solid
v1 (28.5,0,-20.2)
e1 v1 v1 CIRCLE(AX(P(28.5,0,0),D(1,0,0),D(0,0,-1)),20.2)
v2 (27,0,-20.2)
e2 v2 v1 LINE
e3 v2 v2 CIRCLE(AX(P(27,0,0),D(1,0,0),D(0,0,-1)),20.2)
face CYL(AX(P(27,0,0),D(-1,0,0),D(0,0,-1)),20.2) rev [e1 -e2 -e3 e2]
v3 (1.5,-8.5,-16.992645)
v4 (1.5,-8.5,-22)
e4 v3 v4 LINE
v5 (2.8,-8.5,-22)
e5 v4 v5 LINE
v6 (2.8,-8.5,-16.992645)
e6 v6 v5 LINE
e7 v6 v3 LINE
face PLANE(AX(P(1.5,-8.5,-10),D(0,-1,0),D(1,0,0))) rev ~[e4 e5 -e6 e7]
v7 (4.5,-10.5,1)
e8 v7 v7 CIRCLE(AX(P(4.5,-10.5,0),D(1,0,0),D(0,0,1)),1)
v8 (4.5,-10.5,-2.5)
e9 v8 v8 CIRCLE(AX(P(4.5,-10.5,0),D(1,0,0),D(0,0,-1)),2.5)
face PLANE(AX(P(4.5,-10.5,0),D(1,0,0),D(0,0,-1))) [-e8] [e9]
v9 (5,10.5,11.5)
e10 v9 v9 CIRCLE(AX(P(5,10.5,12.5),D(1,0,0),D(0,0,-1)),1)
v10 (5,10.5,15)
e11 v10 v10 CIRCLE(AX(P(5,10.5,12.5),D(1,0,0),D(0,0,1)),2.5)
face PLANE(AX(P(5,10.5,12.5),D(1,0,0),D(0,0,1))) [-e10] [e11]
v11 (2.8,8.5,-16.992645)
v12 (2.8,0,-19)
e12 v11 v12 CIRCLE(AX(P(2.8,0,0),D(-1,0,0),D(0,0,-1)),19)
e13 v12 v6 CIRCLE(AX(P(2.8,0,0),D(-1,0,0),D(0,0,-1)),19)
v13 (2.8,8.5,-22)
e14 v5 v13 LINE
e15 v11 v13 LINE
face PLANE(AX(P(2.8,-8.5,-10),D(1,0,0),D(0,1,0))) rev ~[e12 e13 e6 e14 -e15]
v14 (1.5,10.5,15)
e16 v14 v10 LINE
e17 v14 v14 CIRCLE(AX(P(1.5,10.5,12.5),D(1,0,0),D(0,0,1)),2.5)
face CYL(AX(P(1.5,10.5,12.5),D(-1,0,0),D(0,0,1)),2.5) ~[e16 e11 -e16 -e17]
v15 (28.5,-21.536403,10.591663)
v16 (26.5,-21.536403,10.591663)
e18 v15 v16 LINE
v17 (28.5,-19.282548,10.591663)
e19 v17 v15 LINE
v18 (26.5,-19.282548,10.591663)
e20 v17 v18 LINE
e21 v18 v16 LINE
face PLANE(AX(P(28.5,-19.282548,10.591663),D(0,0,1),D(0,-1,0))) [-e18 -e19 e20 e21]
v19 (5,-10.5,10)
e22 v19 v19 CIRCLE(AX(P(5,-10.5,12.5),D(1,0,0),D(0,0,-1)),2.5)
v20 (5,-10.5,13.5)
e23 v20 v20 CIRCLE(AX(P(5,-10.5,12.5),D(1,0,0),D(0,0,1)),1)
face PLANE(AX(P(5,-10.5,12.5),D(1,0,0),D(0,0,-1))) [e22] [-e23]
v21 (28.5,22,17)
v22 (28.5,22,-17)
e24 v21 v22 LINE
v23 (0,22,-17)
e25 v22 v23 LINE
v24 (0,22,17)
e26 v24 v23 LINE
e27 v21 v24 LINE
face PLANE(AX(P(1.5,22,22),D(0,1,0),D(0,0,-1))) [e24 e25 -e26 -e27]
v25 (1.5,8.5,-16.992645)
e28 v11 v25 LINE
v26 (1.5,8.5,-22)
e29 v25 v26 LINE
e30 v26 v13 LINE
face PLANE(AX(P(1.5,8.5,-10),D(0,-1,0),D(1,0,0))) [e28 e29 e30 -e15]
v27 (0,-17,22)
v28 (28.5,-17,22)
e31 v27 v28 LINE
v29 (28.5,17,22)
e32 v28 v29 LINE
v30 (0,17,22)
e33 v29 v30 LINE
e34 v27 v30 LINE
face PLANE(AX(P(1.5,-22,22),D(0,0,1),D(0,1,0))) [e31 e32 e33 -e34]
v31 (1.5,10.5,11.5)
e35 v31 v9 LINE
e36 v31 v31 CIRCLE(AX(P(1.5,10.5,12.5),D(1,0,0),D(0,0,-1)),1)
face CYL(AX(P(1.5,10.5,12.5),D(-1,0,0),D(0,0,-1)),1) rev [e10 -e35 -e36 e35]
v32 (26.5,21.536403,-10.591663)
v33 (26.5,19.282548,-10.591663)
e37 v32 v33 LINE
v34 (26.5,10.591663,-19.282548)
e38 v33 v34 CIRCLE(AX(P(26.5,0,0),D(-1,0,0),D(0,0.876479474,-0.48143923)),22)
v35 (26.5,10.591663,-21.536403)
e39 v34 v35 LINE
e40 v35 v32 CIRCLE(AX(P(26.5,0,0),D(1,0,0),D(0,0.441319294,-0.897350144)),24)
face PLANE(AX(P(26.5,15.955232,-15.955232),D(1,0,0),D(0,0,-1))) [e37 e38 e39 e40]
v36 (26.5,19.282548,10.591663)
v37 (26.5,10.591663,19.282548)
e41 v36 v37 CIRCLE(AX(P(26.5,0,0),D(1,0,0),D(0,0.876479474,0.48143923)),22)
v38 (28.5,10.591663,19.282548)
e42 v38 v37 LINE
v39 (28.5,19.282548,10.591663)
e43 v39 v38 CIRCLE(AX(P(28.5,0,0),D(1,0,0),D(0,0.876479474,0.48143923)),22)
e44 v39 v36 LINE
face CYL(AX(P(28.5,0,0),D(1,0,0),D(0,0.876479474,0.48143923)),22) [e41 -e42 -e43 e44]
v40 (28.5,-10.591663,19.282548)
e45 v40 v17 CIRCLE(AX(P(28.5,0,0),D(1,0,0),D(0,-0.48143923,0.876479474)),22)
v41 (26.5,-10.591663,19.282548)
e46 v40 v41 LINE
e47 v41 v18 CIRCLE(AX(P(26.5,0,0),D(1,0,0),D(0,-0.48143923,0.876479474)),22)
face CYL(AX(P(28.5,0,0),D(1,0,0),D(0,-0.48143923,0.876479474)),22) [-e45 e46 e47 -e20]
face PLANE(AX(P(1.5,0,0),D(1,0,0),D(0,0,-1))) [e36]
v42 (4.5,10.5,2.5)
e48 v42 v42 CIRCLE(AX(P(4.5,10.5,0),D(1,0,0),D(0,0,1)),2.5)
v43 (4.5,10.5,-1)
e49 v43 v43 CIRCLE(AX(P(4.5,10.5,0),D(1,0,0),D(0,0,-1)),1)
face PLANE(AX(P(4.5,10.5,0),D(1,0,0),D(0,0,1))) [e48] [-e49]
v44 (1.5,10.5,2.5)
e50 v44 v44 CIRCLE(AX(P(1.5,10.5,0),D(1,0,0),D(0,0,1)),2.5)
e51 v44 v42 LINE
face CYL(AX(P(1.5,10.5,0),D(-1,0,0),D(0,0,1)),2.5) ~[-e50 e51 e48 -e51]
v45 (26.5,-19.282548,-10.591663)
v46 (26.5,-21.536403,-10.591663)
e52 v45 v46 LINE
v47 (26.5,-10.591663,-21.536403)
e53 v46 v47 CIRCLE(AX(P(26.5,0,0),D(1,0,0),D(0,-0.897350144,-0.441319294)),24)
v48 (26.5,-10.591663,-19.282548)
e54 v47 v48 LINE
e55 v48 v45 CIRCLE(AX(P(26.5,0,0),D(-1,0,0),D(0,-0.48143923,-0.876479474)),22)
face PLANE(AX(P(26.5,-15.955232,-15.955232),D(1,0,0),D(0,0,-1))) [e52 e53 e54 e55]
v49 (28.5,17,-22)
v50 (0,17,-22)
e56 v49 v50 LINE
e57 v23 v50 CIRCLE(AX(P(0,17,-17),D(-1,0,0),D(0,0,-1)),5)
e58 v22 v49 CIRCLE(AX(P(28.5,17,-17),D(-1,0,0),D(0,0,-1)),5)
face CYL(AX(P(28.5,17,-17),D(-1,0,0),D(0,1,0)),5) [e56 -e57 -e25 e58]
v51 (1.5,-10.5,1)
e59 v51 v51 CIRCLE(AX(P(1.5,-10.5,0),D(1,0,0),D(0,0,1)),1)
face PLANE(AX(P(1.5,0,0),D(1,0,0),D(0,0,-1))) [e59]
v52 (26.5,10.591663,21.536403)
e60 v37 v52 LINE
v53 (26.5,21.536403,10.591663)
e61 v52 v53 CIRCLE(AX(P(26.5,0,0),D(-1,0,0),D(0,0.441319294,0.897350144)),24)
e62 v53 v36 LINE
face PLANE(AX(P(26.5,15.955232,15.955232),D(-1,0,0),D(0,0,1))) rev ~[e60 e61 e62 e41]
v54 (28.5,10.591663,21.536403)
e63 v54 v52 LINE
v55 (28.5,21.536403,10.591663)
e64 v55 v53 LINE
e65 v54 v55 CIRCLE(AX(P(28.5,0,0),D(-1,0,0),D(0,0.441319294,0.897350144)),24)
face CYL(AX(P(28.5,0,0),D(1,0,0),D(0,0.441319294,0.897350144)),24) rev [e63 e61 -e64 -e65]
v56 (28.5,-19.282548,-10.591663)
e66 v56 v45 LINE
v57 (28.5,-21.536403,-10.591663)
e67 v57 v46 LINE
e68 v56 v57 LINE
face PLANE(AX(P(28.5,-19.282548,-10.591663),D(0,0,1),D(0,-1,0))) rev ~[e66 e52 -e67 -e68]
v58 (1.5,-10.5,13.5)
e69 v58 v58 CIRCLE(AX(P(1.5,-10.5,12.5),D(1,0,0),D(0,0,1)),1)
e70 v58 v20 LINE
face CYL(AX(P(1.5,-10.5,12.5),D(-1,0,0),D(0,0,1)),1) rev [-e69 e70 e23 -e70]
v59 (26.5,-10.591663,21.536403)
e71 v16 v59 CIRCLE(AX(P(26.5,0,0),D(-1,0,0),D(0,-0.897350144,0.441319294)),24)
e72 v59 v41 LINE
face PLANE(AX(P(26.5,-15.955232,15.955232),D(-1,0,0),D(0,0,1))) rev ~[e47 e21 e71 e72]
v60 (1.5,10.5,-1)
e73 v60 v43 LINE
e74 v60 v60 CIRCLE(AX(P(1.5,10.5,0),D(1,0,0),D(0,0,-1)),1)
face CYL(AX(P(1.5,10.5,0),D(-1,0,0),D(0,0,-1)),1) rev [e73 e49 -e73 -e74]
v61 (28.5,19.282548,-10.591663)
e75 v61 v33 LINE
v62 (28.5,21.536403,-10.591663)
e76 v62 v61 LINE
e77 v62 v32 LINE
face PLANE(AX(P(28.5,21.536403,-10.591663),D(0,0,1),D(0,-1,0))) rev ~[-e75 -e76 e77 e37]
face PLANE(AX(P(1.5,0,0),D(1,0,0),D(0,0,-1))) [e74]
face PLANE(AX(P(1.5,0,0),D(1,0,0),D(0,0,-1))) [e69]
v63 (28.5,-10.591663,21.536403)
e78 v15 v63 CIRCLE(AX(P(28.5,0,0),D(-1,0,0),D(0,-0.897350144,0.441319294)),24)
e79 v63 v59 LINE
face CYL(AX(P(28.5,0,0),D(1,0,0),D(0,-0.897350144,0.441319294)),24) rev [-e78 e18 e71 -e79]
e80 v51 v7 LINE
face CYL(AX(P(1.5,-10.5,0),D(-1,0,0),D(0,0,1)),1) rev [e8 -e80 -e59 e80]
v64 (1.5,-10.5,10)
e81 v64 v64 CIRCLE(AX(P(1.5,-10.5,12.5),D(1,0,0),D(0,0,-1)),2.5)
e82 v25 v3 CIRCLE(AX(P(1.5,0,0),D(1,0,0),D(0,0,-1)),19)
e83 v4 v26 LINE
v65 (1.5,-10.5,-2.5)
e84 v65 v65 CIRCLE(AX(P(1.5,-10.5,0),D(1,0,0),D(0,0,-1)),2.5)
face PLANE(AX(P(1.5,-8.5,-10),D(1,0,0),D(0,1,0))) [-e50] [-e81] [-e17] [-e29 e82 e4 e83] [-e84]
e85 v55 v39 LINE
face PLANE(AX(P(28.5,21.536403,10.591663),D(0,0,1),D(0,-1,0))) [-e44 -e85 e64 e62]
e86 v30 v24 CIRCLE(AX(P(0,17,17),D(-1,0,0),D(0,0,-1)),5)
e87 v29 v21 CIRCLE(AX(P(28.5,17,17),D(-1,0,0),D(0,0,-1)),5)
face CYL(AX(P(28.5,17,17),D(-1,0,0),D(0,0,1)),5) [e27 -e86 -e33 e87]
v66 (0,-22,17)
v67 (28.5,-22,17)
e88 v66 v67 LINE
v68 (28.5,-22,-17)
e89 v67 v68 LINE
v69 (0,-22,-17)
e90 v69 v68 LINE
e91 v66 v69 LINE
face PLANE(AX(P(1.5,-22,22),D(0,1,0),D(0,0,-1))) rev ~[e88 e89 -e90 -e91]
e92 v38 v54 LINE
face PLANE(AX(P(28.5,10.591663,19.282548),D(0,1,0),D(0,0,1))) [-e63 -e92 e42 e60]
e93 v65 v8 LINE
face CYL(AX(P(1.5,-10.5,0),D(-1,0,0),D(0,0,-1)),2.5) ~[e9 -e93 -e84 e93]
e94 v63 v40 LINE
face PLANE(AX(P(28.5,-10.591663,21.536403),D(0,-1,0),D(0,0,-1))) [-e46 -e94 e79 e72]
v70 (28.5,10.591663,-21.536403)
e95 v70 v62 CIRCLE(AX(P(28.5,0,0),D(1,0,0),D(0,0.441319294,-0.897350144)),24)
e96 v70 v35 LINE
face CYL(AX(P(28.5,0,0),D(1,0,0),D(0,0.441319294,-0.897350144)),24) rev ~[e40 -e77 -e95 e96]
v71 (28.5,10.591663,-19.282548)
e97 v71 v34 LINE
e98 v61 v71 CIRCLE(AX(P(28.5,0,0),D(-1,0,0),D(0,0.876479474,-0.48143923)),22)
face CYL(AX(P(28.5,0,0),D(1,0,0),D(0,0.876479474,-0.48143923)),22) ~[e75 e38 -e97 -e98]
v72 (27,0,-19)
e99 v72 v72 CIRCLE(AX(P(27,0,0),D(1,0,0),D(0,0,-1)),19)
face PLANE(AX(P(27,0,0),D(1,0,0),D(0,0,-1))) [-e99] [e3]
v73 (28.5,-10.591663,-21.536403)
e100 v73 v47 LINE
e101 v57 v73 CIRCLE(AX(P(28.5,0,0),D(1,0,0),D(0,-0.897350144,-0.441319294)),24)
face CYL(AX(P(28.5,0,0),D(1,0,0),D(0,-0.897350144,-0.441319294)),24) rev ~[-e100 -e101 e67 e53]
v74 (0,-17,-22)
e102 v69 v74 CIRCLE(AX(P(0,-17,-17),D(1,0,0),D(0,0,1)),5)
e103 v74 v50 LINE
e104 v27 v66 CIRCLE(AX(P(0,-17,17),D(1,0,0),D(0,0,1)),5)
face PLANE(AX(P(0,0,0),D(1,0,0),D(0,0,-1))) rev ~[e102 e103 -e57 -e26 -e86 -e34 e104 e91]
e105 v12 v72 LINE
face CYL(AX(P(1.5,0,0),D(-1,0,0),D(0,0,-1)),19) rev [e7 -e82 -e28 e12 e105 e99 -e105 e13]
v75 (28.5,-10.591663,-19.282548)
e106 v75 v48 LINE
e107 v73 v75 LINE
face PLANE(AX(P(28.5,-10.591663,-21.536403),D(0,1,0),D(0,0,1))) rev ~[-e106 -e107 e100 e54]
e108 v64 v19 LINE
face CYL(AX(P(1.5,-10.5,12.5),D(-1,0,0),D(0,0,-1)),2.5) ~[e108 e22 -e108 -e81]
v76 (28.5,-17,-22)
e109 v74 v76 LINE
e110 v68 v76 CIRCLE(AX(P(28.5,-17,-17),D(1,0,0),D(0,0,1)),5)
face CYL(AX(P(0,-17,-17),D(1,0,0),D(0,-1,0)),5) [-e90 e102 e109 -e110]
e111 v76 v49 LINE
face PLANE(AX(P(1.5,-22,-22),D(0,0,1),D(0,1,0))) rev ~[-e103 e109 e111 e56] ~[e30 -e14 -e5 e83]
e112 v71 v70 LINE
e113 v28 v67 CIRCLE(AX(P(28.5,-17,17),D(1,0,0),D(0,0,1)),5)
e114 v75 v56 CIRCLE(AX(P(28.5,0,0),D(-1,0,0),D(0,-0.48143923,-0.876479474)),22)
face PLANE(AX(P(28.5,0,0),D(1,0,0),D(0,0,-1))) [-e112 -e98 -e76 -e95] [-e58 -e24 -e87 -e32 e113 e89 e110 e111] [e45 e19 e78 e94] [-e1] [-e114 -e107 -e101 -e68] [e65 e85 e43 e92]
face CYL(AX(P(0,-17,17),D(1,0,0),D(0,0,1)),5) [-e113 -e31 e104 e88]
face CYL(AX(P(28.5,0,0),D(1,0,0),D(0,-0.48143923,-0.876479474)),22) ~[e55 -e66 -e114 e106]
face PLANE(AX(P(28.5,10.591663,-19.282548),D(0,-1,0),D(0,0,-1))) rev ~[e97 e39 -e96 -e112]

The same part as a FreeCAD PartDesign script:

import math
import FreeCAD as App
import Part
import Sketcher

V = App.Vector
Q = App.Units.Quantity


def edges_at(feature, points):
    """Names of the edges that pass closest to the given points."""
    edges = feature.Shape.Edges
    near = lambda p: min(range(len(edges)), key=lambda i: edges[i].distToShape(Part.Vertex(*p))[0])
    return sorted({f"Edge{near(p) + 1}" for p in points})


def add_polygon(sketch, points):
    """Adds a closed chain of lines whose ends are joined by coincident constraints."""
    first, n = sketch.GeometryCount, len(points)
    for a, b in zip(points, points[1:] + points[:1]):
        sketch.addGeometry(Part.LineSegment(App.Vector(*a, 0), App.Vector(*b, 0)), False)
    for i in range(n):
        sketch.addConstraint(Sketcher.Constraint("Coincident", first + i, 2, first + (i + 1) % n, 1))

doc = App.newDocument("Part")
body = doc.addObject("PartDesign::Body", "Body")

# Sketch on YZ plane
sketch1 = doc.addObject("Sketcher::SketchObject", "Sketch")
body.addObject(sketch1)
sketch1.AttachmentSupport = (doc.YZ_Plane, [""])
sketch1.MapMode = "FlatFace"
add_polygon(sketch1, [(22, 22), (-22, 22), (-22, -22), (22, -22)])  # lines 0-3
sketch1.addConstraint([
    Sketcher.Constraint("Horizontal", 0),
    Sketcher.Constraint("Vertical", 1),
    Sketcher.Constraint("Horizontal", 2),
    Sketcher.Constraint("Vertical", 3),
    Sketcher.Constraint("Symmetric", 0, 2, 2, 2, -1, 1),
    Sketcher.Constraint("Equal", 2, 1),
    Sketcher.Constraint("DistanceX", 0, 2, 0, 1, Q("44 mm")),
])
pad1 = doc.addObject("PartDesign::Pad", "Pad")
body.addObject(pad1)
pad1.Profile = sketch1
pad1.Length = 1.5

# Sketch on YZ plane
sketch2 = doc.addObject("Sketcher::SketchObject", "Sketch001")
body.addObject(sketch2)
sketch2.AttachmentSupport = (doc.YZ_Plane, [""])
sketch2.MapMode = "FlatFace"
sketch2.AttachmentOffset = App.Placement(V(0, 0, 1.5), App.Rotation())
sketch2.addGeometry([
    Part.Circle(V(-10.5, 0, 0), V(0, 0, 1), 2.5),
    Part.Circle(V(-10.5, 0, 0), V(0, 0, 1), 1),
    Part.Circle(V(10.5, 0, 0), V(0, 0, 1), 2.5),
    Part.Circle(V(10.5, 0, 0), V(0, 0, 1), 1),
], False)
sketch2.addConstraint([
    Sketcher.Constraint("Coincident", 1, 3, 0, 3),
    Sketcher.Constraint("Coincident", 3, 3, 2, 3),
    Sketcher.Constraint("Equal", 0, 2),
    Sketcher.Constraint("Equal", 1, 3),
    Sketcher.Constraint("Symmetric", 0, 3, 2, 3, -1, 1),
    Sketcher.Constraint("PointOnObject", 0, 3, -1),
    Sketcher.Constraint("Diameter", 0, Q("5 mm")),
    Sketcher.Constraint("Diameter", 1, Q("2 mm")),
    Sketcher.Constraint("DistanceX", 0, 3, 2, 3, Q("21 mm")),
])
pad2 = doc.addObject("PartDesign::Pad", "Pad001")
body.addObject(pad2)
pad2.Profile = sketch2
pad2.Length = 3

# Sketch on YZ plane
sketch3 = doc.addObject("Sketcher::SketchObject", "Sketch002")
body.addObject(sketch3)
sketch3.AttachmentSupport = (doc.YZ_Plane, [""])
sketch3.MapMode = "FlatFace"
sketch3.AttachmentOffset = App.Placement(V(0, 0, 1.5), App.Rotation())
sketch3.addGeometry([
    Part.Circle(V(-10.5, 12.5, 0), V(0, 0, 1), 2.5),
    Part.Circle(V(-10.5, 12.5, 0), V(0, 0, 1), 1),
    Part.Circle(V(10.5, 12.5, 0), V(0, 0, 1), 2.5),
    Part.Circle(V(10.5, 12.5, 0), V(0, 0, 1), 1),
], False)
sketch3.addConstraint([
    Sketcher.Constraint("Coincident", 1, 3, 0, 3),
    Sketcher.Constraint("Coincident", 3, 3, 2, 3),
    Sketcher.Constraint("Equal", 0, 2),
    Sketcher.Constraint("Equal", 1, 3),
    Sketcher.Constraint("Symmetric", 0, 3, 2, 3, -2),
    Sketcher.Constraint("Diameter", 0, Q("5 mm")),
    Sketcher.Constraint("Diameter", 1, Q("2 mm")),
    Sketcher.Constraint("DistanceX", 0, 3, 2, 3, Q("21 mm")),
    Sketcher.Constraint("DistanceY", -1, 1, 0, 3, Q("12.5 mm")),
])
pad3 = doc.addObject("PartDesign::Pad", "Pad002")
body.addObject(pad3)
pad3.Profile = sketch3
pad3.Length = 3.5

# Sketch on YZ plane
sketch4 = doc.addObject("Sketcher::SketchObject", "Sketch003")
body.addObject(sketch4)
sketch4.AttachmentSupport = (doc.YZ_Plane, [""])
sketch4.MapMode = "FlatFace"
sketch4.AttachmentOffset = App.Placement(V(0, 0, 1.5), App.Rotation())
add_polygon(sketch4, [(22, 22), (-22, 22), (-22, -22), (22, -22)])  # lines 0-3
sketch4.addGeometry(Part.Circle(V(0, 0, 0), V(0, 0, 1), 19), False)  # 4
sketch4.addConstraint([
    Sketcher.Constraint("Horizontal", 0),
    Sketcher.Constraint("Vertical", 1),
    Sketcher.Constraint("Horizontal", 2),
    Sketcher.Constraint("Vertical", 3),
    Sketcher.Constraint("Coincident", 4, 3, -1, 1),
    Sketcher.Constraint("Symmetric", 0, 2, 2, 2, -1, 1),
    Sketcher.Constraint("Equal", 2, 1),
    Sketcher.Constraint("Diameter", 4, Q("38 mm")),
    Sketcher.Constraint("DistanceX", 0, 2, 0, 1, Q("44 mm")),
])
pad4 = doc.addObject("PartDesign::Pad", "Pad003")
body.addObject(pad4)
pad4.Profile = sketch4
pad4.Length = 27

# Sketch on YZ plane
sketch5 = doc.addObject("Sketcher::SketchObject", "Sketch004")
body.addObject(sketch5)
sketch5.AttachmentSupport = (doc.YZ_Plane, [""])
sketch5.MapMode = "FlatFace"
sketch5.AttachmentOffset = App.Placement(V(0, 0, 27), App.Rotation())
sketch5.addGeometry([
    Part.Circle(V(0, 0, 0), V(0, 0, 1), 20),
    Part.Circle(V(0, 0, 0), V(0, 0, 1), 19),
], False)
sketch5.addConstraint([
    Sketcher.Constraint("Coincident", 0, 3, -1, 1),
    Sketcher.Constraint("Coincident", 1, 3, -1, 1),
    Sketcher.Constraint("Diameter", 1, Q("38 mm")),
    Sketcher.Constraint("Diameter", 0, Q("40.4 mm")),
])
pocket1 = doc.addObject("PartDesign::Pocket", "Pocket")
body.addObject(pocket1)
pocket1.Profile = sketch5
pocket1.Length = 1.5
pocket1.Reversed = True
doc.recompute()

fillet = doc.addObject("PartDesign::Fillet", "Fillet")
body.addObject(fillet)
fillet.Base = (pocket1, edges_at(pocket1, [
    (14.25, -22, -22),
    (14.25, -22, 22),
    (14.25, 22, 22),
    (14.25, 22, -22),
]))
fillet.Radius = 5

# Sketch on XY plane
sketch6 = doc.addObject("Sketcher::SketchObject", "Sketch005")
body.addObject(sketch6)
sketch6.AttachmentSupport = (doc.XY_Plane, [""])
sketch6.MapMode = "FlatFace"
sketch6.AttachmentOffset = App.Placement(V(0, 0, -10), App.Rotation())
add_polygon(sketch6, [(1.5, 8.5), (1.5, -8.5), (2.8, -8.5), (2.8, 8.5)])  # lines 0-3
sketch6.addConstraint([
    Sketcher.Constraint("Vertical", 0),
    Sketcher.Constraint("Horizontal", 1),
    Sketcher.Constraint("Vertical", 2),
    Sketcher.Constraint("Horizontal", 3),
    Sketcher.Constraint("DistanceY", 0, 2, 0, 1, Q("17 mm")),
    Sketcher.Constraint("DistanceX", 1, 1, 1, 2, Q("1.3 mm")),
    Sketcher.Constraint("DistanceX", -1, 1, 0, 2, Q("1.5 mm")),
    Sketcher.Constraint("DistanceY", 0, 2, -1, 1, Q("8.5 mm")),
])
pocket2 = doc.addObject("PartDesign::Pocket", "Pocket001")
body.addObject(pocket2)
pocket2.Profile = sketch6
pocket2.Type = "ThroughAll"

# Sketch on YZ plane
sketch7 = doc.addObject("Sketcher::SketchObject", "Sketch006")
body.addObject(sketch7)
sketch7.AttachmentSupport = (doc.YZ_Plane, [""])
sketch7.MapMode = "FlatFace"
sketch7.AttachmentOffset = App.Placement(V(0, 0, 28.5), App.Rotation())
sketch7.addGeometry([
    Part.LineSegment(V(19.3, 10.6, 0), V(21.5, 10.6, 0)),  # 0
    Part.ArcOfCircle(Part.Circle(V(0, 0, 0), V(0, 0, 1), 24), math.radians(26), math.radians(64)),  # 1
    Part.LineSegment(V(10.6, 21.5, 0), V(10.6, 19.3, 0)),  # 2
    Part.ArcOfCircle(Part.Circle(V(0, 0, 0), V(0, 0, 1), 22), math.radians(29), math.radians(61)),  # 3
    Part.LineSegment(V(21.5, -10.6, 0), V(19.3, -10.6, 0)),  # 4
    Part.ArcOfCircle(Part.Circle(V(0, 0, 0), V(0, 0, 1), 22), math.radians(-61), math.radians(-29)),  # 5
    Part.LineSegment(V(10.6, -19.3, 0), V(10.6, -21.5, 0)),  # 6
    Part.ArcOfCircle(Part.Circle(V(0, 0, 0), V(0, 0, 1), 24), math.radians(-64), math.radians(-26)),  # 7
    Part.LineSegment(V(-10.6, 19.3, 0), V(-10.6, 21.5, 0)),  # 8
    Part.ArcOfCircle(Part.Circle(V(0, 0, 0), V(0, 0, 1), 24), math.radians(116), math.radians(154)),  # 9
    Part.LineSegment(V(-21.5, 10.6, 0), V(-19.3, 10.6, 0)),  # 10
    Part.ArcOfCircle(Part.Circle(V(0, 0, 0), V(0, 0, 1), 22), math.radians(119), math.radians(151)),  # 11
    Part.LineSegment(V(-10.6, -21.5, 0), V(-10.6, -19.3, 0)),  # 12
    Part.ArcOfCircle(Part.Circle(V(0, 0, 0), V(0, 0, 1), 22), math.radians(-151), math.radians(-119)),  # 13
    Part.LineSegment(V(-19.3, -10.6, 0), V(-21.5, -10.6, 0)),  # 14
    Part.ArcOfCircle(Part.Circle(V(0, 0, 0), V(0, 0, 1), 24), math.radians(-154), math.radians(-116)),  # 15
], False)
sketch7.addConstraint([
    Sketcher.Constraint("Coincident", 0, 2, 1, 1),
    Sketcher.Constraint("Coincident", 1, 2, 2, 1),
    Sketcher.Constraint("Coincident", 2, 2, 3, 2),
    Sketcher.Constraint("Coincident", 3, 1, 0, 1),
    Sketcher.Constraint("Coincident", 4, 2, 5, 2),
    Sketcher.Constraint("Coincident", 5, 1, 6, 1),
    Sketcher.Constraint("Coincident", 6, 2, 7, 1),
    Sketcher.Constraint("Coincident", 7, 2, 4, 1),
    Sketcher.Constraint("Coincident", 8, 2, 9, 1),
    Sketcher.Constraint("Coincident", 9, 2, 10, 1),
    Sketcher.Constraint("Coincident", 10, 2, 11, 2),
    Sketcher.Constraint("Coincident", 11, 1, 8, 1),
    Sketcher.Constraint("Coincident", 12, 2, 13, 2),
    Sketcher.Constraint("Coincident", 13, 1, 14, 1),
    Sketcher.Constraint("Coincident", 14, 2, 15, 1),
    Sketcher.Constraint("Coincident", 15, 2, 12, 1),
    Sketcher.Constraint("Horizontal", 0),
    Sketcher.Constraint("Vertical", 2),
    Sketcher.Constraint("Horizontal", 4),
    Sketcher.Constraint("Vertical", 6),
    Sketcher.Constraint("Vertical", 8),
    Sketcher.Constraint("Horizontal", 10),
    Sketcher.Constraint("Vertical", 12),
    Sketcher.Constraint("Horizontal", 14),
    Sketcher.Constraint("Coincident", 1, 3, -1, 1),
    Sketcher.Constraint("Coincident", 3, 3, -1, 1),
    Sketcher.Constraint("Coincident", 5, 3, -1, 1),
    Sketcher.Constraint("Coincident", 7, 3, -1, 1),
    Sketcher.Constraint("Coincident", 9, 3, -1, 1),
    Sketcher.Constraint("Coincident", 11, 3, -1, 1),
    Sketcher.Constraint("Coincident", 13, 3, -1, 1),
    Sketcher.Constraint("Coincident", 15, 3, -1, 1),
    Sketcher.Constraint("Equal", 3, 5),
    Sketcher.Constraint("Equal", 1, 7),
    Sketcher.Constraint("Equal", 7, 9),
    Sketcher.Constraint("Equal", 5, 11),
    Sketcher.Constraint("Equal", 11, 13),
    Sketcher.Constraint("Equal", 9, 15),
    Sketcher.Constraint("Horizontal", 1, 2, 8, 2),
    Sketcher.Constraint("Horizontal", 3, 1, 9, 2),
    Sketcher.Constraint("Horizontal", 5, 1, 12, 2),
    Sketcher.Constraint("Horizontal", 7, 2, 13, 1),
    Sketcher.Constraint("Vertical", 3, 1, 4, 2),
    Sketcher.Constraint("Vertical", 2, 2, 5, 1),
    Sketcher.Constraint("Equal", 14, 2),
    Sketcher.Constraint("Radius", 1, Q("24 mm")),
    Sketcher.Constraint("Radius", 3, Q("22 mm")),
    Sketcher.Constraint("DistanceX", 0, 1, 0, 2, Q("2.253855 mm")),
])
pocket3 = doc.addObject("PartDesign::Pocket", "Pocket002")
body.addObject(pocket3)
pocket3.Profile = sketch7
pocket3.Length = 2

doc.recompute()
